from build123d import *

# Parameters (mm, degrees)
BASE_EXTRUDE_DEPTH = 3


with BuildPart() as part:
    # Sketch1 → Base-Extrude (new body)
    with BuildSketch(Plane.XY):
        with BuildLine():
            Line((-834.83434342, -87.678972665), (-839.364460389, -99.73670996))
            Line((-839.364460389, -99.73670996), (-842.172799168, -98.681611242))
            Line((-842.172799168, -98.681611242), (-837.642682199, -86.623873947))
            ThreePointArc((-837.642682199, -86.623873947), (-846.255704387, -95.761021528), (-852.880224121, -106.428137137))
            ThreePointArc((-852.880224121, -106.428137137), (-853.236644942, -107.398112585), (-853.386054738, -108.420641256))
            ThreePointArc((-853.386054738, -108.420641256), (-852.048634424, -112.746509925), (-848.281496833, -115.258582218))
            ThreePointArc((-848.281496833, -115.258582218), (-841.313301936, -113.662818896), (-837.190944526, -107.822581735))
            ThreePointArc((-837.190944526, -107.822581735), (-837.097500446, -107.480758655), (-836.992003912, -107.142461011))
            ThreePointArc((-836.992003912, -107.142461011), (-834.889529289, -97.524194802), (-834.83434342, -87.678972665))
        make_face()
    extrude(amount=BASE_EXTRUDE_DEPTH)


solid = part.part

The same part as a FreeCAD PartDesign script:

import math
import FreeCAD as App
import Part
import Sketcher
from FreeCAD import Vector

doc = App.newDocument("Part")
params = doc.addObject("Spreadsheet::Sheet", "Params")
for row, (alias, value) in enumerate([
    ("sketch1_radius", "5 mm"),
    ("sketch1_radius2", "10 mm"),
    ("sketch1_radius3", "10 mm"),
    ("sketch1_length", "3 mm"),
    ("pad1_length", "3 mm"),
], start=1):
    params.set(f"A{row}", alias)
    params.set(f"B{row}", "=" + value)
    params.setAlias(f"B{row}", alias)

body = doc.addObject("PartDesign::Body", "Body")

# Sketch on XY plane
sketch1 = body.newObject("Sketcher::SketchObject", "Sketch")
sketch1.AttachmentSupport = (doc.getObject("XY_Plane"), [""])
sketch1.MapMode = "FlatFace"
sketch1.addGeometry([
    Part.LineSegment(Vector(-834.834343, -87.678973, 0), Vector(-839.36446, -99.73671, 0)),  # 0
    Part.LineSegment(Vector(-839.36446, -99.73671, 0), Vector(-842.172799, -98.681611, 0)),  # 1
    Part.LineSegment(Vector(-842.172799, -98.681611, 0), Vector(-837.642682, -86.623874, 0)),  # 2
    Part.ArcOfCircle(Part.Circle(Vector(-796.449004, -134.082653, 0), Vector(0, 0, 1), 62.843097), math.radians(130.957607), math.radians(153.892511)),  # 3
    Part.ArcOfCircle(Part.Circle(Vector(-848.390374, -108.62842, 0), Vector(0, 0, 1), 5), math.radians(153.892511), math.radians(177.618347)),  # 4
    Part.ArcOfCircle(Part.Circle(Vector(-846.630209, -108.701628, 0), Vector(0, 0, 1), 6.761686), math.radians(177.618347), math.radians(255.864708)),  # 5
    Part.ArcOfCircle(Part.Circle(Vector(-846.882216, -105.356966, 0), Vector(0, 0, 1), 10), math.radians(-98.043687), math.radians(-14.274139)),  # 6
    Part.ArcOfCircle(Part.Circle(Vector(-827.499674, -110.288198, 0), Vector(0, 0, 1), 10), math.radians(161.66492), math.radians(165.725861)),  # 7
    Part.ArcOfCircle(Part.Circle(Vector(-881.660993, -92.339259, 0), Vector(0, 0, 1), 47.057979), math.radians(-18.33508), math.radians(5.683481)),  # 8
], False)
sketch1.addConstraint([
    Sketcher.Constraint("Coincident", 0, 2, 1, 1),
    Sketcher.Constraint("Coincident", 1, 2, 2, 1),
    Sketcher.Constraint("Coincident", 2, 2, 3, 1),
    Sketcher.Constraint("Coincident", 3, 2, 4, 1),
    Sketcher.Constraint("Coincident", 4, 2, 5, 1),
    Sketcher.Constraint("Coincident", 5, 2, 6, 1),
    Sketcher.Constraint("Coincident", 6, 2, 7, 2),
    Sketcher.Constraint("Coincident", 7, 1, 8, 1),
    Sketcher.Constraint("Coincident", 8, 2, 0, 1),
    Sketcher.Constraint("Radius", 4, 5.0),
    Sketcher.Constraint("Radius", 6, 10.0),
    Sketcher.Constraint("Radius", 7, 10.0),
    Sketcher.Constraint("Distance", 1, 3.0),
    Sketcher.Constraint("Radius", 8, 47.057979),
    Sketcher.Constraint("Radius", 3, 62.843097),
    Sketcher.Constraint("Radius", 5, 6.761686),
    Sketcher.Constraint("DistanceX", 1, 2, -1, 1, 842.172799),
    Sketcher.Constraint("DistanceX", 4, 3, 7, 3, 20.8907),
    Sketcher.Constraint("DistanceY", 0, 2, 1, 2, 1.055099),
    Sketcher.Constraint("DistanceY", 8, 2, 2, 2, 1.055099),
    Sketcher.Constraint("DistanceX", 6, 2, 8, 2, 2.356601),
    Sketcher.Constraint("DistanceY", 4, 3, -1, 1, 108.62842),
    Sketcher.Constraint("DistanceX", 5, 3, -1, 1, 846.630209),
    Sketcher.Constraint("DistanceY", 5, 3, -1, 1, 108.701628),
    Sketcher.Constraint("DistanceY", 8, 3, -1, 1, 92.339259),
    Sketcher.Constraint("DistanceY", 0, 2, -1, 1, 99.73671),
    Sketcher.Constraint("DistanceY", 4, 2, -1, 1, 108.420641),
    Sketcher.Constraint("DistanceY", 6, 2, -1, 1, 107.822582),
    Sketcher.Constraint("DistanceY", 7, 1, -1, 1, 107.142461),
    Sketcher.Constraint("DistanceX", 4, 3, 3, 3, 51.94137),
    Sketcher.Constraint("DistanceX", 4, 3, 6, 3, 1.508158),
    Sketcher.Constraint("DistanceY", 7, 3, 5, 3, 1.58657),
    Sketcher.Constraint("DistanceX", 3, 2, 4, 3, 4.48985),
])
sketch1.setExpression("Constraints[9]", "Params.sketch1_radius")
sketch1.setExpression("Constraints[10]", "Params.sketch1_radius2")
sketch1.setExpression("Constraints[11]", "Params.sketch1_radius3")
sketch1.setExpression("Constraints[12]", "Params.sketch1_length")
pad1 = body.newObject("PartDesign::Pad", "Pad")
pad1.Profile = sketch1
pad1.setExpression("Length", "Params.pad1_length")

doc.recompute()
